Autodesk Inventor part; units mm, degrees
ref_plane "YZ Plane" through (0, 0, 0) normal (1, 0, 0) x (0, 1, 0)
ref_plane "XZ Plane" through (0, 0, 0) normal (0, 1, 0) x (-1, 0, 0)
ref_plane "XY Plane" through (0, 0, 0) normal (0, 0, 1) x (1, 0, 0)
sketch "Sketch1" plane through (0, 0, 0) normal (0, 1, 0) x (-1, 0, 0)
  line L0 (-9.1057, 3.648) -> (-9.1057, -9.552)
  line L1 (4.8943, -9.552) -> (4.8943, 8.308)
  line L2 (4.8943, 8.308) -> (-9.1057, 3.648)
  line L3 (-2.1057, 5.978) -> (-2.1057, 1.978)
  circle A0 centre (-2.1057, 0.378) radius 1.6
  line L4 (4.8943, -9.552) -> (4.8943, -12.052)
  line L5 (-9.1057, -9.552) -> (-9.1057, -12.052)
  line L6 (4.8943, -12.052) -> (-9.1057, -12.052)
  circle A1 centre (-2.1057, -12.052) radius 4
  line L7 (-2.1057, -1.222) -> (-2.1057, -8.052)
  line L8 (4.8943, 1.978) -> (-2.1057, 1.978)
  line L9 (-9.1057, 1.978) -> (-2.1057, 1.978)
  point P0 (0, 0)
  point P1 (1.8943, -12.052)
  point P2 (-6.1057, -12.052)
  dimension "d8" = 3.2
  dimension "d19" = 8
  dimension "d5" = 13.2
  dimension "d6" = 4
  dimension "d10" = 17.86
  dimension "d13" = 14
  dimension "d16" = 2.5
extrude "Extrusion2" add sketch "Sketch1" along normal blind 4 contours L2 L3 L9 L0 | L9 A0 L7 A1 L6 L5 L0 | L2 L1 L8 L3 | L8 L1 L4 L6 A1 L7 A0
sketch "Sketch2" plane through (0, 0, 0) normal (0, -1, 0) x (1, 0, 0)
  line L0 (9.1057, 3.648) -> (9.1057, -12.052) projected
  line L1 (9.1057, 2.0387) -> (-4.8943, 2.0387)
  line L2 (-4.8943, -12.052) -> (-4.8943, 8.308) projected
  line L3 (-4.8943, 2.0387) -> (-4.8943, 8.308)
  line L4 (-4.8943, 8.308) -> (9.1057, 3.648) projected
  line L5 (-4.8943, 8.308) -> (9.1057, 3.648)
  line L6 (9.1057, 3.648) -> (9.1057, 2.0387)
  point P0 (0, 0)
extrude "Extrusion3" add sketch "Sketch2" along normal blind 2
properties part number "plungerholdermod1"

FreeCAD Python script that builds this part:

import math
import FreeCAD as App
import Part
import Sketcher
Q = App.Units.Quantity


def add_polygon(sketch, points):
    """Adds a closed chain of lines whose ends are joined by coincident constraints."""
    first, n = sketch.GeometryCount, len(points)
    for a, b in zip(points, points[1:] + points[:1]):
        sketch.addGeometry(Part.LineSegment(App.Vector(*a, 0), App.Vector(*b, 0)), False)
    for i in range(n):
        sketch.addConstraint(Sketcher.Constraint("Coincident", first + i, 2, first + (i + 1) % n, 1))

doc = App.newDocument("Part")
params = doc.addObject("Spreadsheet::Sheet", "Params")
for row, (alias, value) in enumerate([
    ("sketch1_radius", "4 mm"),
    ("sketch1_diameter", "3.2 mm"),
    ("sketch1_height", "15.7 mm"),
    ("sketch1_height2", "20.36 mm"),
    ("pad1_length", "4 mm"),
    ("sketch2_width", "14 mm"),
    ("pad2_length", "2 mm"),
], start=1):
    params.set(f"A{row}", alias)
    params.set(f"B{row}", "=" + value)
    params.setAlias(f"B{row}", alias)

body = doc.addObject("PartDesign::Body", "Body")

# Sketch on XZ plane
sketch1 = body.newObject("Sketcher::SketchObject", "Sketch")
sketch1.AttachmentSupport = (doc.getObject("XZ_Plane"), [""])
sketch1.MapMode = "FlatFace"
sketch1.addGeometry([
    Part.LineSegment(App.Vector(9.1057, 3.648, 0), App.Vector(9.1057, -12.052, 0)),  # 0
    Part.LineSegment(App.Vector(9.1057, -12.052, 0), App.Vector(6.1057, -12.052, 0)),  # 1
    Part.ArcOfCircle(Part.Circle(App.Vector(2.1057, -12.052, 0), App.Vector(0, 0, 1), 4), math.radians(0), math.radians(180)),  # 2
    Part.LineSegment(App.Vector(-1.8943, -12.052, 0), App.Vector(-4.8943, -12.052, 0)),  # 3
    Part.LineSegment(App.Vector(-4.8943, -12.052, 0), App.Vector(-4.8943, 8.308, 0)),  # 4
    Part.LineSegment(App.Vector(-4.8943, 8.308, 0), App.Vector(9.1057, 3.648, 0)),  # 5
    Part.Circle(App.Vector(2.1057, 0.378, 0), App.Vector(0, 0, 1), 1.6),  # 6
], False)
sketch1.addConstraint([
    Sketcher.Constraint("Coincident", 0, 2, 1, 1),
    Sketcher.Constraint("Coincident", 1, 2, 2, 1),
    Sketcher.Constraint("Coincident", 2, 2, 3, 1),
    Sketcher.Constraint("Coincident", 3, 2, 4, 1),
    Sketcher.Constraint("Coincident", 4, 2, 5, 1),
    Sketcher.Constraint("Coincident", 5, 2, 0, 1),
    Sketcher.Constraint("Vertical", 0),
    Sketcher.Constraint("Horizontal", 1),
    Sketcher.Constraint("Horizontal", 3),
    Sketcher.Constraint("Vertical", 4),
    Sketcher.Constraint("Horizontal", 2, 3, 0, 2),
    Sketcher.Constraint("Horizontal", 1, 2, 2, 2),
    Sketcher.Constraint("Vertical", 2, 3, 6, 3),
    Sketcher.Constraint("Equal", 1, 3),
    Sketcher.Constraint("Radius", 2, 4.0),
    Sketcher.Constraint("Diameter", 6, 3.2),
    Sketcher.Constraint("DistanceX", 3, 2, 0, 2, 14.0),
    Sketcher.Constraint("DistanceY", 0, 2, 0, 1, 15.7),
    Sketcher.Constraint("DistanceY", 4, 1, 4, 2, 20.36),
    Sketcher.Constraint("DistanceY", 2, 3, 6, 3, 12.43),
    Sketcher.Constraint("DistanceY", 2, 3, -1, 1, 12.052),
    Sketcher.Constraint("DistanceX", -1, 1, 2, 3, 2.1057),
])
sketch1.setExpression("Constraints[14]", "Params.sketch1_radius")
sketch1.setExpression("Constraints[15]", "Params.sketch1_diameter")
sketch1.setExpression("Constraints[17]", "Params.sketch1_height")
sketch1.setExpression("Constraints[18]", "Params.sketch1_height2")
pad1 = body.newObject("PartDesign::Pad", "Pad")
pad1.Profile = sketch1
pad1.setExpression("Length", "Params.pad1_length")
pad1.Reversed = True

# Sketch on XZ plane
sketch2 = body.newObject("Sketcher::SketchObject", "Sketch001")
sketch2.AttachmentSupport = (doc.getObject("XZ_Plane"), [""])
sketch2.MapMode = "FlatFace"
add_polygon(sketch2, [(9.1057, 2.0387), (9.1057, 3.648), (-4.8943, 8.308), (-4.8943, 2.0387)])  # lines 0-3
sketch2.addConstraint([
    Sketcher.Constraint("Vertical", 0),
    Sketcher.Constraint("Vertical", 2),
    Sketcher.Constraint("Horizontal", 3),
    Sketcher.Constraint("DistanceX", 3, 1, 3, 2, 14.0),
    Sketcher.Constraint("Angle", 1, Q("161.5896 deg")),
    Sketcher.Constraint("DistanceY", 0, 1, 0, 2, 1.6093),
    Sketcher.Constraint("DistanceY", -1, 1, 0, 2, 3.648),
    Sketcher.Constraint("DistanceX", -1, 1, 0, 2, 9.1057),
])
sketch2.setExpression("Constraints[7]", "Params.sketch2_width")
pad2 = body.newObject("PartDesign::Pad", "Pad001")
pad2.Profile = sketch2
pad2.setExpression("Length", "Params.pad2_length")

doc.recompute()
